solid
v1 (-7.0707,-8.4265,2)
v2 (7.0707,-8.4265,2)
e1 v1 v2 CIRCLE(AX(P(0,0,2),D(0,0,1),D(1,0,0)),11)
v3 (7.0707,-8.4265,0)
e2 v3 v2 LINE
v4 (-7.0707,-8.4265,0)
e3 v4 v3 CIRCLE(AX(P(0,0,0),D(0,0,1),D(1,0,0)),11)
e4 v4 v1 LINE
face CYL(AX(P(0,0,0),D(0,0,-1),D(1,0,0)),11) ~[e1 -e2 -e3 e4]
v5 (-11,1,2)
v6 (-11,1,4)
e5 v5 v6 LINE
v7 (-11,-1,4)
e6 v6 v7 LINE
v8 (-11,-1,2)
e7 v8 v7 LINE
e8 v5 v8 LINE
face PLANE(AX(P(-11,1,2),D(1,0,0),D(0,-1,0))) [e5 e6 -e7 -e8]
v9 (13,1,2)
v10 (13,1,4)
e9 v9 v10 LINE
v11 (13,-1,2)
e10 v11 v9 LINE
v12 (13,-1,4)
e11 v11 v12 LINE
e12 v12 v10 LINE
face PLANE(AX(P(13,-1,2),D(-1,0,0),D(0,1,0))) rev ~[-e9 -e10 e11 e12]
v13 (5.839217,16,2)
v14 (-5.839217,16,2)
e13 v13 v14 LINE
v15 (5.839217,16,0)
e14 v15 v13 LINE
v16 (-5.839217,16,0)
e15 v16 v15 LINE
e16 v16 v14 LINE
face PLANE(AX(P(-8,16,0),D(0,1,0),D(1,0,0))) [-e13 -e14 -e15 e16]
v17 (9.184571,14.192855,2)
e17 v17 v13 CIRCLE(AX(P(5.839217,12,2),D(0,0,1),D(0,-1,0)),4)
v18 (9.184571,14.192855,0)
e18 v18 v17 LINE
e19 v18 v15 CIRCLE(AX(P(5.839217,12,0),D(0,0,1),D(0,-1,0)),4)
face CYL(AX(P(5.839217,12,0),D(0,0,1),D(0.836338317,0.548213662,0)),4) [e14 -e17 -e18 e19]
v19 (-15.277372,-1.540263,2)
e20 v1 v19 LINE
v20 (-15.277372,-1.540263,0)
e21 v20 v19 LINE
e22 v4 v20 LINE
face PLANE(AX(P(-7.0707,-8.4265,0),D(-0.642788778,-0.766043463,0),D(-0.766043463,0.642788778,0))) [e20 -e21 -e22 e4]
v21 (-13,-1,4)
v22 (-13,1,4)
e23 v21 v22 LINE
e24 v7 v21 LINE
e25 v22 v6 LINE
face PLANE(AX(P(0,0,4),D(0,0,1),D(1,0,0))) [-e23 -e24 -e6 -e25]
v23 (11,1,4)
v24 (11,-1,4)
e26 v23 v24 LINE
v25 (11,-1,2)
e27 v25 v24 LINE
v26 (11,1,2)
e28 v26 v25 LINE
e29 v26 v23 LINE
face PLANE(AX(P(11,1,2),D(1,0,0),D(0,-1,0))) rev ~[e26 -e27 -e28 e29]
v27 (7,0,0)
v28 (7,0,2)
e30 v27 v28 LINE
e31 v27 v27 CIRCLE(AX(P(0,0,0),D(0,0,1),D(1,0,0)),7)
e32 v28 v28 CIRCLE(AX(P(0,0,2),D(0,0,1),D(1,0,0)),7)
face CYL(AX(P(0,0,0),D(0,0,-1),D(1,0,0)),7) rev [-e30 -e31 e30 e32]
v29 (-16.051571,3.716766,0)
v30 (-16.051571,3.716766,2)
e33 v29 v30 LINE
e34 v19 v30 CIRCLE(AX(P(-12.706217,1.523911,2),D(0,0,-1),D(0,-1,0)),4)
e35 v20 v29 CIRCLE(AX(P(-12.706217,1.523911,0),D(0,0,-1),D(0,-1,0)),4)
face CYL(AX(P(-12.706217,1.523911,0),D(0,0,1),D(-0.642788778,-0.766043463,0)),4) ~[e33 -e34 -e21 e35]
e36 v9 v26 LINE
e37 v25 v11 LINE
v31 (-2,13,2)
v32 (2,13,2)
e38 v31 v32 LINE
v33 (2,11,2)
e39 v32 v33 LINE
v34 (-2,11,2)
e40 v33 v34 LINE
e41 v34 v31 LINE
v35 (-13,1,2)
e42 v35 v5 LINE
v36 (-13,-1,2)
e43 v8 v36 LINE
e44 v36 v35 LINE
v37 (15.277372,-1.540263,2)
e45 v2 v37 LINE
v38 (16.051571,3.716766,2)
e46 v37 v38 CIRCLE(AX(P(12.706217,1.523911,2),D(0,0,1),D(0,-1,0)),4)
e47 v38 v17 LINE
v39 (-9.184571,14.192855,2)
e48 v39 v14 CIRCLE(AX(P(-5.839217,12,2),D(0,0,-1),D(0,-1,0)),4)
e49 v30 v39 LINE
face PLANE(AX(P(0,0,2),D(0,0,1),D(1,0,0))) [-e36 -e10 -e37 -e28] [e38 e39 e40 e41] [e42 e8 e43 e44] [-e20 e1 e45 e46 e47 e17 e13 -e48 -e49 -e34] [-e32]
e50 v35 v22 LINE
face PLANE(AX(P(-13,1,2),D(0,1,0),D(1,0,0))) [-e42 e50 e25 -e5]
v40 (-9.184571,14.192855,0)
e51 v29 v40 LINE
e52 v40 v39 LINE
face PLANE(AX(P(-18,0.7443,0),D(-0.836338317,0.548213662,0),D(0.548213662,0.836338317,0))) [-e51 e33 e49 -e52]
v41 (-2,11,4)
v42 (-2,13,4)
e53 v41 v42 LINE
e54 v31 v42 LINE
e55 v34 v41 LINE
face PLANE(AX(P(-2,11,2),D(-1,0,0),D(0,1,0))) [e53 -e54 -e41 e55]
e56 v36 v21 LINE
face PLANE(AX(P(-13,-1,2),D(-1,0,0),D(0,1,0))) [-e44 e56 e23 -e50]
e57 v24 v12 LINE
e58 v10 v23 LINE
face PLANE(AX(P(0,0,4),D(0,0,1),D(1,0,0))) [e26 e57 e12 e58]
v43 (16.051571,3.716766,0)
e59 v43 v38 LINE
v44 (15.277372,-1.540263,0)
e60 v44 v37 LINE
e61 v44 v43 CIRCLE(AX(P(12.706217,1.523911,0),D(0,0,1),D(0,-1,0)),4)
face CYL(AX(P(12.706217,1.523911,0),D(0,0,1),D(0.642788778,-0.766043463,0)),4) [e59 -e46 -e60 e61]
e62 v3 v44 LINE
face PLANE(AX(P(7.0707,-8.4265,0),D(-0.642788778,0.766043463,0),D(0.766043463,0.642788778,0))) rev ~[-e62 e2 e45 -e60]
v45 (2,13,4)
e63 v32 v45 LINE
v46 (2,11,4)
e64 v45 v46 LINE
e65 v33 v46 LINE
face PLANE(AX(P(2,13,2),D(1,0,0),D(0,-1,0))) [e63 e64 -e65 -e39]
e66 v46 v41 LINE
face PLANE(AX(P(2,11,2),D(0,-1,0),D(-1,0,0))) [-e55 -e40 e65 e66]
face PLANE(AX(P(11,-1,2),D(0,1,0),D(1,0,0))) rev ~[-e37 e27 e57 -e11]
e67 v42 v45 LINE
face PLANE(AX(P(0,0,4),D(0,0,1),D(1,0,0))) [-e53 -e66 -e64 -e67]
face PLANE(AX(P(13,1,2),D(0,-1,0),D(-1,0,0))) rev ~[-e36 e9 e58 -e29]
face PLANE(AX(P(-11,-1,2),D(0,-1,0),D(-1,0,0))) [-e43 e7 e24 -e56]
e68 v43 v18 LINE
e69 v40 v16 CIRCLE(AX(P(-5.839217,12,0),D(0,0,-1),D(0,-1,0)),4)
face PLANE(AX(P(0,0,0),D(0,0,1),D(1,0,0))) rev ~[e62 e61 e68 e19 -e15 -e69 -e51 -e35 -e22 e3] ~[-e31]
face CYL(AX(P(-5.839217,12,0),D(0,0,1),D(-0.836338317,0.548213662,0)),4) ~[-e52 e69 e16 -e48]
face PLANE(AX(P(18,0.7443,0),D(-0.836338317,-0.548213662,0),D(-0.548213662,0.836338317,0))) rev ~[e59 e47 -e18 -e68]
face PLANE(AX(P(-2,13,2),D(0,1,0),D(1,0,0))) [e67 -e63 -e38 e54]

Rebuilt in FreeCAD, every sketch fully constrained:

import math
import FreeCAD as App
import Part
import Sketcher

V = App.Vector
Q = App.Units.Quantity


def edges_at(feature, points):
    """Names of the edges that pass closest to the given points."""
    edges = feature.Shape.Edges
    near = lambda p: min(range(len(edges)), key=lambda i: edges[i].distToShape(Part.Vertex(*p))[0])
    return sorted({f"Edge{near(p) + 1}" for p in points})

doc = App.newDocument("Part")
body = doc.addObject("PartDesign::Body", "Body")

# Sketch on XY plane
sketch1 = doc.addObject("Sketcher::SketchObject", "Sketch")
body.addObject(sketch1)
sketch1.AttachmentSupport = (doc.XY_Plane, [""])
sketch1.MapMode = "FlatFace"
sketch1.addGeometry(Part.ArcOfCircle(Part.Circle(V(0, 0, 0), V(0, 0, 1), 11), math.radians(-130), math.radians(-50)), False)
sketch1.addGeometry(Part.LineSegment(V(7, -8, 0), V(18, 1, 0)), False)
sketch1.addGeometry(Part.LineSegment(V(18, 1, 0), V(8, 16, 0)), False)
sketch1.addGeometry(Part.LineSegment(V(8, 16, 0), V(-8, 16, 0)), False)
sketch1.addGeometry(Part.LineSegment(V(-8, 16, 0), V(-18, 1, 0)), False)
sketch1.addGeometry(Part.LineSegment(V(-18, 1, 0), V(-7, -8, 0)), False)
sketch1.addGeometry(Part.Circle(V(0, 0, 0), V(0, 0, 1), 7), False)
sketch1.addConstraint(Sketcher.Constraint("Tangent", 0, 2, 1, 1))
sketch1.addConstraint(Sketcher.Constraint("Coincident", 1, 2, 2, 1))
sketch1.addConstraint(Sketcher.Constraint("Coincident", 2, 2, 3, 1))
sketch1.addConstraint(Sketcher.Constraint("Coincident", 3, 2, 4, 1))
sketch1.addConstraint(Sketcher.Constraint("Coincident", 4, 2, 5, 1))
sketch1.addConstraint(Sketcher.Constraint("Tangent", 5, 2, 0, 1))
sketch1.addConstraint(Sketcher.Constraint("Horizontal", 3))
sketch1.addConstraint(Sketcher.Constraint("Coincident", 0, 3, -1, 1))
sketch1.addConstraint(Sketcher.Constraint("Coincident", 6, 3, -1, 1))
sketch1.addConstraint(Sketcher.Constraint("Symmetric", 1, 2, 4, 2, -2))
sketch1.addConstraint(Sketcher.Constraint("Equal", 2, 4))
sketch1.addConstraint(Sketcher.Constraint("Diameter", 6, 14.0))
sketch1.addConstraint(Sketcher.Constraint("Radius", 0, 11.0))
sketch1.addConstraint(Sketcher.Constraint("DistanceX", 3, 2, 3, 1, 16.0))
sketch1.addConstraint(Sketcher.Constraint("DistanceX", -1, 1, 1, 2, 18.0))
sketch1.addConstraint(Sketcher.Constraint("DistanceY", -1, 1, 2, 2, 16.0))
sketch1.addConstraint(Sketcher.Constraint("Angle", 1, Q("40 deg")))
pad1 = doc.addObject("PartDesign::Pad", "Pad")
body.addObject(pad1)
pad1.Profile = sketch1
pad1.Length = 2

# Sketch on XY plane
sketch2 = doc.addObject("Sketcher::SketchObject", "Sketch001")
body.addObject(sketch2)
sketch2.AttachmentSupport = (doc.XY_Plane, [""])
sketch2.MapMode = "FlatFace"
sketch2.AttachmentOffset = App.Placement(V(0, 0, 2), App.Rotation())
sketch2.addGeometry(Part.LineSegment(V(11, 1, 0), V(11, -1, 0)), False)
sketch2.addGeometry(Part.LineSegment(V(11, -1, 0), V(13, -1, 0)), False)
sketch2.addGeometry(Part.LineSegment(V(13, -1, 0), V(13, 1, 0)), False)
sketch2.addGeometry(Part.LineSegment(V(13, 1, 0), V(11, 1, 0)), False)
sketch2.addGeometry(Part.LineSegment(V(2, 13, 0), V(-2, 13, 0)), False)
sketch2.addGeometry(Part.LineSegment(V(-2, 13, 0), V(-2, 11, 0)), False)
sketch2.addGeometry(Part.LineSegment(V(-2, 11, 0), V(2, 11, 0)), False)
sketch2.addGeometry(Part.LineSegment(V(2, 11, 0), V(2, 13, 0)), False)
sketch2.addGeometry(Part.LineSegment(V(-13, -1, 0), V(-11, -1, 0)), False)
sketch2.addGeometry(Part.LineSegment(V(-11, -1, 0), V(-11, 1, 0)), False)
sketch2.addGeometry(Part.LineSegment(V(-11, 1, 0), V(-13, 1, 0)), False)
sketch2.addGeometry(Part.LineSegment(V(-13, 1, 0), V(-13, -1, 0)), False)
sketch2.addConstraint(Sketcher.Constraint("Coincident", 0, 2, 1, 1))
sketch2.addConstraint(Sketcher.Constraint("Coincident", 1, 2, 2, 1))
sketch2.addConstraint(Sketcher.Constraint("Coincident", 2, 2, 3, 1))
sketch2.addConstraint(Sketcher.Constraint("Coincident", 3, 2, 0, 1))
sketch2.addConstraint(Sketcher.Constraint("Coincident", 4, 2, 5, 1))
sketch2.addConstraint(Sketcher.Constraint("Coincident", 5, 2, 6, 1))
sketch2.addConstraint(Sketcher.Constraint("Coincident", 6, 2, 7, 1))
sketch2.addConstraint(Sketcher.Constraint("Coincident", 7, 2, 4, 1))
sketch2.addConstraint(Sketcher.Constraint("Coincident", 8, 2, 9, 1))
sketch2.addConstraint(Sketcher.Constraint("Coincident", 9, 2, 10, 1))
sketch2.addConstraint(Sketcher.Constraint("Coincident", 10, 2, 11, 1))
sketch2.addConstraint(Sketcher.Constraint("Coincident", 11, 2, 8, 1))
sketch2.addConstraint(Sketcher.Constraint("Vertical", 0))
sketch2.addConstraint(Sketcher.Constraint("Horizontal", 1))
sketch2.addConstraint(Sketcher.Constraint("Vertical", 2))
sketch2.addConstraint(Sketcher.Constraint("Horizontal", 3))
sketch2.addConstraint(Sketcher.Constraint("Horizontal", 4))
sketch2.addConstraint(Sketcher.Constraint("Vertical", 5))
sketch2.addConstraint(Sketcher.Constraint("Horizontal", 6))
sketch2.addConstraint(Sketcher.Constraint("Vertical", 7))
sketch2.addConstraint(Sketcher.Constraint("Horizontal", 8))
sketch2.addConstraint(Sketcher.Constraint("Vertical", 9))
sketch2.addConstraint(Sketcher.Constraint("Horizontal", 10))
sketch2.addConstraint(Sketcher.Constraint("Vertical", 11))
sketch2.addConstraint(Sketcher.Constraint("Symmetric", 3, 2, 8, 2, -1, 1))
sketch2.addConstraint(Sketcher.Constraint("Symmetric", 1, 2, 10, 2, -1, 1))
sketch2.addConstraint(Sketcher.Constraint("Horizontal", 1, 2, 8, 2))
sketch2.addConstraint(Sketcher.Constraint("Equal", 10, 0))
sketch2.addConstraint(Sketcher.Constraint("Equal", 2, 5))
sketch2.addConstraint(Sketcher.Constraint("DistanceX", 1, 1, 1, 2, 2.0))
sketch2.addConstraint(Sketcher.Constraint("DistanceX", 4, 2, 4, 1, 4.0))
sketch2.addConstraint(Sketcher.Constraint("DistanceX", 4, 2, -1, 1, 2.0))
sketch2.addConstraint(Sketcher.Constraint("DistanceY", 3, 2, 4, 2, 12.0))
sketch2.addConstraint(Sketcher.Constraint("DistanceX", -1, 1, 0, 2, 11.0))
pad2 = doc.addObject("PartDesign::Pad", "Pad001")
body.addObject(pad2)
pad2.Profile = sketch2
pad2.Length = 2
doc.recompute()

fillet = doc.addObject("PartDesign::Fillet", "Fillet")
body.addObject(fillet)
fillet.Base = (pad2, edges_at(pad2, [
    (18, 0.744, 1),
    (-18, 0.744, 1),
    (-8, 16, 1),
    (8, 16, 1),
]))
fillet.Radius = 4

doc.recompute()
